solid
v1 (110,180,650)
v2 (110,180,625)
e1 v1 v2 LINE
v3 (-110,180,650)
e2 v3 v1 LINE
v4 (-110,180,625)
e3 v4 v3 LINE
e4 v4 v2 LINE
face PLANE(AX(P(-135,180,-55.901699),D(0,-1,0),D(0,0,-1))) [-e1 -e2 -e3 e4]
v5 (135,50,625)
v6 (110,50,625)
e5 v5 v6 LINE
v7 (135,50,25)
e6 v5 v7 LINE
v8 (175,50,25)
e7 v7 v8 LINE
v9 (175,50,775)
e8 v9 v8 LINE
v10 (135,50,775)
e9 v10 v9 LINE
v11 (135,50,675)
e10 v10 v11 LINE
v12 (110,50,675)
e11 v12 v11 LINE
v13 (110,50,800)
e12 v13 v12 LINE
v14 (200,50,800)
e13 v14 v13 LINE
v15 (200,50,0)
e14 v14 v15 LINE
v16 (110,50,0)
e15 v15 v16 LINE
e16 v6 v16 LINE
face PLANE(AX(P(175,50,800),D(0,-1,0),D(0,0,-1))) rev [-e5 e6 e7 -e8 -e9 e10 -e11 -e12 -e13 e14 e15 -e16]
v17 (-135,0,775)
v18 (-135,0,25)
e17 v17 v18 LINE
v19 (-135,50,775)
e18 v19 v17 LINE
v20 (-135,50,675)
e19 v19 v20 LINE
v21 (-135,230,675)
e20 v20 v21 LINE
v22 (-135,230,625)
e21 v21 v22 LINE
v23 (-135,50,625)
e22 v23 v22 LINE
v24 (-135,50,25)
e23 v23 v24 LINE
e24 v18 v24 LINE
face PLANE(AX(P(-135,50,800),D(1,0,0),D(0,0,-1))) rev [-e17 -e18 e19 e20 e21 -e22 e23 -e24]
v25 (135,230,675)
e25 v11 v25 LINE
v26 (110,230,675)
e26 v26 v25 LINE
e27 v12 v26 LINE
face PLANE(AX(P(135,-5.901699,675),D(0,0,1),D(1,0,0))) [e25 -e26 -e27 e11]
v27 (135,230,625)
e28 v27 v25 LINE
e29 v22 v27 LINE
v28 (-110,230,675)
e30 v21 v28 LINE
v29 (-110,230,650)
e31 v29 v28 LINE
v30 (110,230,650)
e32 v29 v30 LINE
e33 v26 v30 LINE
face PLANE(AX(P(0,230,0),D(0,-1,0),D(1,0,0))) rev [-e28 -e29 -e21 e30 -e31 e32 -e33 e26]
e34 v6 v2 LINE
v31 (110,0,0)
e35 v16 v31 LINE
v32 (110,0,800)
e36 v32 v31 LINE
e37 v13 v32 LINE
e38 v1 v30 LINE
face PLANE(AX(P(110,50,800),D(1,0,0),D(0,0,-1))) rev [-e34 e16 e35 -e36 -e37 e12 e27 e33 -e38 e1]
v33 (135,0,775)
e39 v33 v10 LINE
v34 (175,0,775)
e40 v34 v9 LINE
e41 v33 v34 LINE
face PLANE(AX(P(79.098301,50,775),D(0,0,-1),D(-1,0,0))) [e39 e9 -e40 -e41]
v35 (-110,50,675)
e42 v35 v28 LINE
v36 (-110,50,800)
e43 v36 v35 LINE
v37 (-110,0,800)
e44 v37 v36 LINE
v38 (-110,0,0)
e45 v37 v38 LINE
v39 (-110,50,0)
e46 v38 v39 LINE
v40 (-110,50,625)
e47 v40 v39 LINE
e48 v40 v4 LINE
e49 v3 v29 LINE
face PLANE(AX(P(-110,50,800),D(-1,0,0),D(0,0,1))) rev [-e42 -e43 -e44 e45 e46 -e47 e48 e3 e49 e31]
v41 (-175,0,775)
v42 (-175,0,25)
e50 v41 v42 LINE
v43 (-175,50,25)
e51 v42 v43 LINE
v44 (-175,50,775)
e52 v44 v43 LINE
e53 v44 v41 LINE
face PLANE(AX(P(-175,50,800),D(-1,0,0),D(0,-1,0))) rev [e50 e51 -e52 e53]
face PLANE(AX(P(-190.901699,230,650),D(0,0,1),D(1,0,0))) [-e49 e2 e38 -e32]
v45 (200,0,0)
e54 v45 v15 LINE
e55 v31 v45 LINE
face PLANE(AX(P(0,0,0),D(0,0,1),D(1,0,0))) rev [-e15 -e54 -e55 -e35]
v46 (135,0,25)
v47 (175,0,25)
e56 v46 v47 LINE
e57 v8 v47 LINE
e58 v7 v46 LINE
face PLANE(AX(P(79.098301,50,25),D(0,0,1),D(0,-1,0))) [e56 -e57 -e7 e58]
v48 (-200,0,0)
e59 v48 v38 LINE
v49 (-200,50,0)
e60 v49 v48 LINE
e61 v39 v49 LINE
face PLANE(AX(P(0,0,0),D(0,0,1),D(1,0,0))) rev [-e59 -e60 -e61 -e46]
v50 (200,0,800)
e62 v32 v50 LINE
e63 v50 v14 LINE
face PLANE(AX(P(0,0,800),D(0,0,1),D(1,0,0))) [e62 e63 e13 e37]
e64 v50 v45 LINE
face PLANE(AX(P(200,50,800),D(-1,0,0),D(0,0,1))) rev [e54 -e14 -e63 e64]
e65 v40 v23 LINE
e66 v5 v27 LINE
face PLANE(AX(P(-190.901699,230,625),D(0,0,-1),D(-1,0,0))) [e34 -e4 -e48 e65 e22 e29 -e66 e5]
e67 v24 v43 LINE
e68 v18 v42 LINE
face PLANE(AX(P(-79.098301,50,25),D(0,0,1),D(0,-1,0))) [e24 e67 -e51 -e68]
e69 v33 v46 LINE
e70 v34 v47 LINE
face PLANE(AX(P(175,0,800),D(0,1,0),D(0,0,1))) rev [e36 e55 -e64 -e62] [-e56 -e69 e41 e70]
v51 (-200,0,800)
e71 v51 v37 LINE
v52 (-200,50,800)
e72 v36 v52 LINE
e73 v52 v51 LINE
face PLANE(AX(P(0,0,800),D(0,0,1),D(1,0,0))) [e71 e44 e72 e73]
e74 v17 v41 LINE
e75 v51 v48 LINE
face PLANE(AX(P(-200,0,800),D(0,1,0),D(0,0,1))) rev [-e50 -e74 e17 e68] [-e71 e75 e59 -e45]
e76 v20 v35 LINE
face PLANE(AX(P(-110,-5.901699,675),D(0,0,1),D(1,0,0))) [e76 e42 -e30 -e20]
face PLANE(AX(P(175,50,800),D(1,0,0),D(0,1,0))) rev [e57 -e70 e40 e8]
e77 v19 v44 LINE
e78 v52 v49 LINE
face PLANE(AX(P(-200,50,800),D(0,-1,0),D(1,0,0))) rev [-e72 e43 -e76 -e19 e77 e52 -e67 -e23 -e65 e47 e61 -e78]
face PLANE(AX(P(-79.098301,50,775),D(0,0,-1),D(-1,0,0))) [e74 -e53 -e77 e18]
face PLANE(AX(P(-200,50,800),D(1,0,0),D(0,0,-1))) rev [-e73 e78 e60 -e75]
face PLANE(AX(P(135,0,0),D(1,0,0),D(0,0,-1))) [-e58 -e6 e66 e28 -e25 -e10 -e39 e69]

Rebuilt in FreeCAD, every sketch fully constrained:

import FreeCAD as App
import Part
import Sketcher
from FreeCAD import Vector
Q = App.Units.Quantity

doc = App.newDocument("Part")
body = doc.addObject("PartDesign::Body", "Body")

sketch1 = body.newObject("Sketcher::SketchObject", "Sketch")
sketch1.AttachmentSupport = (doc.getObject("XY_Plane"), [""])
sketch1.MapMode = "FlatFace"
sketch1.addGeometry([
    Part.LineSegment(Vector(-200, 50, 0), Vector(-200, 0, 0)),
    Part.LineSegment(Vector(-200, 0, 0), Vector(-175, 0, 0)),
    Part.LineSegment(Vector(-175, 0, 0), Vector(-175, 50, 0)),
    Part.LineSegment(Vector(-175, 50, 0), Vector(-200, 50, 0)),
], False)
sketch1.addConstraint([
    Sketcher.Constraint("Coincident", 0, 2, 1, 1),
    Sketcher.Constraint("Coincident", 1, 2, 2, 1),
    Sketcher.Constraint("Coincident", 2, 2, 3, 1),
    Sketcher.Constraint("Coincident", 3, 2, 0, 1),
    Sketcher.Constraint("Vertical", 0),
    Sketcher.Constraint("Horizontal", 1),
    Sketcher.Constraint("Vertical", 2),
    Sketcher.Constraint("Horizontal", 3),
    Sketcher.Constraint("PointOnObject", 0, 2, -1),
    Sketcher.Constraint("DistanceX", 1, 1, 1, 2, Q("25 mm")),
    Sketcher.Constraint("DistanceY", 0, 2, 0, 1, Q("50 mm")),
    Sketcher.Constraint("DistanceX", 0, 2, -1, 1, Q("200 mm")),
])
pad1 = body.newObject("PartDesign::Pad", "Pad")
pad1.Profile = sketch1
pad1.Length = 800
body2 = doc.addObject("PartDesign::Body", "Body001")

sketch2 = body2.newObject("Sketcher::SketchObject", "Sketch001")
sketch2.AttachmentSupport = (doc.getObject("XY_Plane001"), [""])
sketch2.MapMode = "FlatFace"
sketch2.addGeometry([
    Part.LineSegment(Vector(175, 50, 0), Vector(175, 0, 0)),
    Part.LineSegment(Vector(175, 0, 0), Vector(200, 0, 0)),
    Part.LineSegment(Vector(200, 0, 0), Vector(200, 50, 0)),
    Part.LineSegment(Vector(200, 50, 0), Vector(175, 50, 0)),
], False)
sketch2.addConstraint([
    Sketcher.Constraint("Coincident", 0, 2, 1, 1),
    Sketcher.Constraint("Coincident", 1, 2, 2, 1),
    Sketcher.Constraint("Coincident", 2, 2, 3, 1),
    Sketcher.Constraint("Coincident", 3, 2, 0, 1),
    Sketcher.Constraint("Vertical", 0),
    Sketcher.Constraint("Horizontal", 1),
    Sketcher.Constraint("Vertical", 2),
    Sketcher.Constraint("Horizontal", 3),
    Sketcher.Constraint("PointOnObject", 0, 2, -1),
    Sketcher.Constraint("DistanceX", 1, 1, 1, 2, Q("25 mm")),
    Sketcher.Constraint("DistanceY", 0, 2, 0, 1, Q("50 mm")),
    Sketcher.Constraint("DistanceX", -1, 1, 0, 2, Q("175 mm")),
])
pad2 = body2.newObject("PartDesign::Pad", "Pad001")
pad2.Profile = sketch2
pad2.Length = 800
body3 = doc.addObject("PartDesign::Body", "Body002")

sketch3 = body3.newObject("Sketcher::SketchObject", "Sketch002")
sketch3.AttachmentSupport = (doc.getObject("XY_Plane002"), [""])
sketch3.MapMode = "FlatFace"
sketch3.addGeometry([
    Part.LineSegment(Vector(-135, 50, 0), Vector(-135, 0, 0)),
    Part.LineSegment(Vector(-135, 0, 0), Vector(-110, 0, 0)),
    Part.LineSegment(Vector(-110, 0, 0), Vector(-110, 50, 0)),
    Part.LineSegment(Vector(-110, 50, 0), Vector(-135, 50, 0)),
], False)
sketch3.addConstraint([
    Sketcher.Constraint("Coincident", 0, 2, 1, 1),
    Sketcher.Constraint("Coincident", 1, 2, 2, 1),
    Sketcher.Constraint("Coincident", 2, 2, 3, 1),
    Sketcher.Constraint("Coincident", 3, 2, 0, 1),
    Sketcher.Constraint("Vertical", 0),
    Sketcher.Constraint("Horizontal", 1),
    Sketcher.Constraint("Vertical", 2),
    Sketcher.Constraint("Horizontal", 3),
    Sketcher.Constraint("PointOnObject", 0, 2, -1),
    Sketcher.Constraint("DistanceX", 1, 1, 1, 2, Q("25 mm")),
    Sketcher.Constraint("DistanceY", 0, 2, 0, 1, Q("50 mm")),
    Sketcher.Constraint("DistanceX", 0, 2, -1, 1, Q("135 mm")),
])
pad3 = body3.newObject("PartDesign::Pad", "Pad002")
pad3.Profile = sketch3
pad3.Length = 800
body4 = doc.addObject("PartDesign::Body", "Body003")

sketch4 = body4.newObject("Sketcher::SketchObject", "Sketch003")
sketch4.AttachmentSupport = (doc.getObject("XY_Plane003"), [""])
sketch4.MapMode = "FlatFace"
sketch4.addGeometry([
    Part.LineSegment(Vector(110, 50, 0), Vector(110, 0, 0)),
    Part.LineSegment(Vector(110, 0, 0), Vector(135, 0, 0)),
    Part.LineSegment(Vector(135, 0, 0), Vector(135, 50, 0)),
    Part.LineSegment(Vector(135, 50, 0), Vector(110, 50, 0)),
], False)
sketch4.addConstraint([
    Sketcher.Constraint("Coincident", 0, 2, 1, 1),
    Sketcher.Constraint("Coincident", 1, 2, 2, 1),
    Sketcher.Constraint("Coincident", 2, 2, 3, 1),
    Sketcher.Constraint("Coincident", 3, 2, 0, 1),
    Sketcher.Constraint("Vertical", 0),
    Sketcher.Constraint("Horizontal", 1),
    Sketcher.Constraint("Vertical", 2),
    Sketcher.Constraint("Horizontal", 3),
    Sketcher.Constraint("PointOnObject", 0, 2, -1),
    Sketcher.Constraint("DistanceX", 1, 1, 1, 2, Q("25 mm")),
    Sketcher.Constraint("DistanceY", 0, 2, 0, 1, Q("50 mm")),
    Sketcher.Constraint("DistanceX", -1, 1, 0, 2, Q("110 mm")),
])
pad4 = body4.newObject("PartDesign::Pad", "Pad003")
pad4.Profile = sketch4
pad4.Length = 800
body3.AllowCompound = True
doc.recompute()

boolean = body3.newObject("PartDesign::Boolean", "Boolean")
boolean.Type = "Fuse"
boolean.addObjects([body4])

sketch5 = body3.newObject("Sketcher::SketchObject", "Sketch004")
sketch5.AttachmentSupport = (doc.getObject("XZ_Plane002"), [""])
sketch5.MapMode = "FlatFace"
sketch5.addGeometry([
    Part.LineSegment(Vector(-135, 800, 0), Vector(-135, 750, 0)),
    Part.LineSegment(Vector(-135, 750, 0), Vector(-110, 750, 0)),
    Part.LineSegment(Vector(-110, 750, 0), Vector(-110, 800, 0)),
    Part.LineSegment(Vector(-110, 800, 0), Vector(-135, 800, 0)),
    Part.LineSegment(Vector(110, 800, 0), Vector(110, 750, 0)),
    Part.LineSegment(Vector(110, 750, 0), Vector(135, 750, 0)),
    Part.LineSegment(Vector(135, 750, 0), Vector(135, 800, 0)),
    Part.LineSegment(Vector(135, 800, 0), Vector(110, 800, 0)),
    Part.LineSegment(Vector(-135, 50, 0), Vector(-135, 0, 0)),
    Part.LineSegment(Vector(-135, 0, 0), Vector(-110, 0, 0)),
    Part.LineSegment(Vector(-110, 0, 0), Vector(-110, 50, 0)),
    Part.LineSegment(Vector(-110, 50, 0), Vector(-135, 50, 0)),
    Part.LineSegment(Vector(110, 50, 0), Vector(110, 0, 0)),
    Part.LineSegment(Vector(110, 0, 0), Vector(135, 0, 0)),
    Part.LineSegment(Vector(135, 0, 0), Vector(135, 50, 0)),
    Part.LineSegment(Vector(135, 50, 0), Vector(110, 50, 0)),
], False)
sketch5.addConstraint([
    Sketcher.Constraint("Coincident", 0, 2, 1, 1),
    Sketcher.Constraint("Coincident", 1, 2, 2, 1),
    Sketcher.Constraint("Coincident", 2, 2, 3, 1),
    Sketcher.Constraint("Coincident", 3, 2, 0, 1),
    Sketcher.Constraint("Coincident", 4, 2, 5, 1),
    Sketcher.Constraint("Coincident", 5, 2, 6, 1),
    Sketcher.Constraint("Coincident", 6, 2, 7, 1),
    Sketcher.Constraint("Coincident", 7, 2, 4, 1),
    Sketcher.Constraint("Coincident", 8, 2, 9, 1),
    Sketcher.Constraint("Coincident", 9, 2, 10, 1),
    Sketcher.Constraint("Coincident", 10, 2, 11, 1),
    Sketcher.Constraint("Coincident", 11, 2, 8, 1),
    Sketcher.Constraint("Coincident", 12, 2, 13, 1),
    Sketcher.Constraint("Coincident", 13, 2, 14, 1),
    Sketcher.Constraint("Coincident", 14, 2, 15, 1),
    Sketcher.Constraint("Coincident", 15, 2, 12, 1),
    Sketcher.Constraint("Vertical", 0),
    Sketcher.Constraint("Horizontal", 1),
    Sketcher.Constraint("Vertical", 2),
    Sketcher.Constraint("Horizontal", 3),
    Sketcher.Constraint("Vertical", 4),
    Sketcher.Constraint("Horizontal", 5),
    Sketcher.Constraint("Vertical", 6),
    Sketcher.Constraint("Horizontal", 7),
    Sketcher.Constraint("Vertical", 8),
    Sketcher.Constraint("Horizontal", 9),
    Sketcher.Constraint("Vertical", 10),
    Sketcher.Constraint("Horizontal", 11),
    Sketcher.Constraint("Vertical", 12),
    Sketcher.Constraint("Horizontal", 13),
    Sketcher.Constraint("Vertical", 14),
    Sketcher.Constraint("Horizontal", 15),
    Sketcher.Constraint("Symmetric", 9, 2, 12, 2, -1, 1),
    Sketcher.Constraint("Symmetric", 1, 2, 4, 2, -2),
    Sketcher.Constraint("Symmetric", 3, 2, 6, 2, -2),
    Sketcher.Constraint("Symmetric", 8, 2, 13, 2, -2),
    Sketcher.Constraint("Horizontal", 11, 2, 14, 2),
    Sketcher.Constraint("Vertical", 3, 2, 8, 2),
    Sketcher.Constraint("Vertical", 2, 2, 9, 2),
    Sketcher.Constraint("Equal", 6, 8),
    Sketcher.Constraint("DistanceX", 1, 1, 1, 2, Q("25 mm")),
    Sketcher.Constraint("DistanceY", 0, 2, 0, 1, Q("50 mm")),
    Sketcher.Constraint("DistanceX", 0, 2, -1, 1, Q("135 mm")),
    Sketcher.Constraint("DistanceY", -1, 1, 0, 2, Q("750 mm")),
])
pad5 = body3.newObject("PartDesign::Pad", "Pad004")
pad5.Profile = sketch5
pad5.Length = 230
pad5.Reversed = True
body.AllowCompound = True
doc.recompute()

boolean2 = body.newObject("PartDesign::Boolean", "Boolean001")
boolean2.Type = "Fuse"
boolean2.addObjects([body3])

sketch6 = body.newObject("Sketcher::SketchObject", "Sketch005")
sketch6.AttachmentSupport = (doc.getObject("YZ_Plane"), [""])
sketch6.MapMode = "FlatFace"
sketch6.AttachmentOffset = App.Placement(Vector(0, 0, -200), App.Rotation())
sketch6.addGeometry([
    Part.LineSegment(Vector(50, 0, 0), Vector(0, 0, 0)),
    Part.LineSegment(Vector(0, 0, 0), Vector(0, 25, 0)),
    Part.LineSegment(Vector(0, 25, 0), Vector(50, 25, 0)),
    Part.LineSegment(Vector(50, 25, 0), Vector(50, 0, 0)),
    Part.LineSegment(Vector(50, 775, 0), Vector(0, 775, 0)),
    Part.LineSegment(Vector(0, 775, 0), Vector(0, 800, 0)),
    Part.LineSegment(Vector(0, 800, 0), Vector(50, 800, 0)),
    Part.LineSegment(Vector(50, 800, 0), Vector(50, 775, 0)),
], False)
sketch6.addConstraint([
    Sketcher.Constraint("Coincident", 0, 2, 1, 1),
    Sketcher.Constraint("Coincident", 1, 2, 2, 1),
    Sketcher.Constraint("Coincident", 2, 2, 3, 1),
    Sketcher.Constraint("Coincident", 3, 2, 0, 1),
    Sketcher.Constraint("Coincident", 4, 2, 5, 1),
    Sketcher.Constraint("Coincident", 5, 2, 6, 1),
    Sketcher.Constraint("Coincident", 6, 2, 7, 1),
    Sketcher.Constraint("Coincident", 7, 2, 4, 1),
    Sketcher.Constraint("Horizontal", 0),
    Sketcher.Constraint("Vertical", 1),
    Sketcher.Constraint("Horizontal", 2),
    Sketcher.Constraint("Vertical", 3),
    Sketcher.Constraint("Horizontal", 4),
    Sketcher.Constraint("Vertical", 5),
    Sketcher.Constraint("Horizontal", 6),
    Sketcher.Constraint("Vertical", 7),
    Sketcher.Constraint("Coincident", 0, 2, -1, 1),
    Sketcher.Constraint("PointOnObject", 4, 2, -2),
    Sketcher.Constraint("Vertical", 3, 2, 6, 2),
    Sketcher.Constraint("Equal", 3, 5),
    Sketcher.Constraint("DistanceX", 0, 2, 0, 1, Q("50 mm")),
    Sketcher.Constraint("DistanceY", 1, 1, 1, 2, Q("25 mm")),
    Sketcher.Constraint("DistanceY", -1, 1, 4, 2, Q("775 mm")),
])
pad6 = body.newObject("PartDesign::Pad", "Pad005")
pad6.Profile = sketch6
pad6.Length = 65
doc.recompute()

boolean3 = body.newObject("PartDesign::Boolean", "Boolean002")
boolean3.Type = "Fuse"
boolean3.addObjects([body2])

sketch7 = body.newObject("Sketcher::SketchObject", "Sketch006")
sketch7.AttachmentSupport = (doc.getObject("YZ_Plane"), [""])
sketch7.MapMode = "FlatFace"
sketch7.AttachmentOffset = App.Placement(Vector(0, 0, 200), App.Rotation())
sketch7.addGeometry([
    Part.LineSegment(Vector(50, 800, 0), Vector(0, 800, 0)),
    Part.LineSegment(Vector(0, 800, 0), Vector(0, 775, 0)),
    Part.LineSegment(Vector(0, 775, 0), Vector(50, 775, 0)),
    Part.LineSegment(Vector(50, 775, 0), Vector(50, 800, 0)),
    Part.LineSegment(Vector(50, 25, 0), Vector(0, 25, 0)),
    Part.LineSegment(Vector(0, 25, 0), Vector(0, 0, 0)),
    Part.LineSegment(Vector(0, 0, 0), Vector(50, 0, 0)),
    Part.LineSegment(Vector(50, 0, 0), Vector(50, 25, 0)),
], False)
sketch7.addConstraint([
    Sketcher.Constraint("Coincident", 0, 2, 1, 1),
    Sketcher.Constraint("Coincident", 1, 2, 2, 1),
    Sketcher.Constraint("Coincident", 2, 2, 3, 1),
    Sketcher.Constraint("Coincident", 3, 2, 0, 1),
    Sketcher.Constraint("Coincident", 4, 2, 5, 1),
    Sketcher.Constraint("Coincident", 5, 2, 6, 1),
    Sketcher.Constraint("Coincident", 6, 2, 7, 1),
    Sketcher.Constraint("Coincident", 7, 2, 4, 1),
    Sketcher.Constraint("Horizontal", 0),
    Sketcher.Constraint("Vertical", 1),
    Sketcher.Constraint("Horizontal", 2),
    Sketcher.Constraint("Vertical", 3),
    Sketcher.Constraint("Horizontal", 4),
    Sketcher.Constraint("Vertical", 5),
    Sketcher.Constraint("Horizontal", 6),
    Sketcher.Constraint("Vertical", 7),
    Sketcher.Constraint("Coincident", 5, 2, -1, 1),
    Sketcher.Constraint("PointOnObject", 0, 2, -2),
    Sketcher.Constraint("Vertical", 3, 2, 6, 2),
    Sketcher.Constraint("Equal", 3, 5),
    Sketcher.Constraint("DistanceX", 0, 2, 0, 1, Q("50 mm")),
    Sketcher.Constraint("DistanceY", 1, 2, 1, 1, Q("25 mm")),
    Sketcher.Constraint("DistanceY", -1, 1, 0, 2, Q("800 mm")),
])
pad7 = body.newObject("PartDesign::Pad", "Pad006")
pad7.Profile = sketch7
pad7.Length = 65
pad7.Reversed = True

sketch8 = body.newObject("Sketcher::SketchObject", "Sketch007")
sketch8.AttachmentSupport = (doc.getObject("XY_Plane"), [""])
sketch8.MapMode = "FlatFace"
sketch8.AttachmentOffset = App.Placement(Vector(0, 0, 800), App.Rotation())
sketch8.addGeometry([
    Part.LineSegment(Vector(-135, 230, 0), Vector(-135, 180, 0)),
    Part.LineSegment(Vector(-135, 180, 0), Vector(-110, 180, 0)),
    Part.LineSegment(Vector(-110, 180, 0), Vector(-110, 230, 0)),
    Part.LineSegment(Vector(-110, 230, 0), Vector(-135, 230, 0)),
    Part.LineSegment(Vector(110, 230, 0), Vector(110, 180, 0)),
    Part.LineSegment(Vector(110, 180, 0), Vector(135, 180, 0)),
    Part.LineSegment(Vector(135, 180, 0), Vector(135, 230, 0)),
    Part.LineSegment(Vector(135, 230, 0), Vector(110, 230, 0)),
], False)
sketch8.addConstraint([
    Sketcher.Constraint("Coincident", 0, 2, 1, 1),
    Sketcher.Constraint("Coincident", 1, 2, 2, 1),
    Sketcher.Constraint("Coincident", 2, 2, 3, 1),
    Sketcher.Constraint("Coincident", 3, 2, 0, 1),
    Sketcher.Constraint("Coincident", 4, 2, 5, 1),
    Sketcher.Constraint("Coincident", 5, 2, 6, 1),
    Sketcher.Constraint("Coincident", 6, 2, 7, 1),
    Sketcher.Constraint("Coincident", 7, 2, 4, 1),
    Sketcher.Constraint("Vertical", 0),
    Sketcher.Constraint("Horizontal", 1),
    Sketcher.Constraint("Vertical", 2),
    Sketcher.Constraint("Horizontal", 3),
    Sketcher.Constraint("Vertical", 4),
    Sketcher.Constraint("Horizontal", 5),
    Sketcher.Constraint("Vertical", 6),
    Sketcher.Constraint("Horizontal", 7),
    Sketcher.Constraint("Symmetric", 1, 2, 4, 2, -2),
    Sketcher.Constraint("Symmetric", 3, 2, 6, 2, -2),
    Sketcher.Constraint("DistanceX", 1, 1, 1, 2, Q("25 mm")),
    Sketcher.Constraint("DistanceY", 0, 2, 0, 1, Q("50 mm")),
    Sketcher.Constraint("DistanceX", 0, 2, -1, 1, Q("135 mm")),
    Sketcher.Constraint("DistanceY", -1, 1, 0, 2, Q("180 mm")),
])
pad8 = body.newObject("PartDesign::Pad", "Pad007")
pad8.Profile = sketch8
pad8.Length = 800
pad8.Reversed = True

sketch9 = body.newObject("Sketcher::SketchObject", "Sketch008")
sketch9.AttachmentSupport = (doc.getObject("YZ_Plane"), [""])
sketch9.MapMode = "FlatFace"
sketch9.AttachmentOffset = App.Placement(Vector(0, 0, 135), App.Rotation())
sketch9.addGeometry([
    Part.LineSegment(Vector(230, 650, 0), Vector(180, 650, 0)),
    Part.LineSegment(Vector(180, 650, 0), Vector(180, 625, 0)),
    Part.LineSegment(Vector(180, 625, 0), Vector(230, 625, 0)),
    Part.LineSegment(Vector(230, 625, 0), Vector(230, 650, 0)),
], False)
sketch9.addConstraint([
    Sketcher.Constraint("Coincident", 0, 2, 1, 1),
    Sketcher.Constraint("Coincident", 1, 2, 2, 1),
    Sketcher.Constraint("Coincident", 2, 2, 3, 1),
    Sketcher.Constraint("Coincident", 3, 2, 0, 1),
    Sketcher.Constraint("Horizontal", 0),
    Sketcher.Constraint("Vertical", 1),
    Sketcher.Constraint("Horizontal", 2),
    Sketcher.Constraint("Vertical", 3),
    Sketcher.Constraint("DistanceX", 0, 2, 0, 1, Q("50 mm")),
    Sketcher.Constraint("DistanceY", 1, 2, 1, 1, Q("25 mm")),
    Sketcher.Constraint("DistanceX", -1, 1, 0, 2, Q("180 mm")),
    Sketcher.Constraint("DistanceY", -1, 1, 0, 2, Q("650 mm")),
])
pad9 = body.newObject("PartDesign::Pad", "Pad008")
pad9.Profile = sketch9
pad9.Length = 270
pad9.Reversed = True

sketch10 = body.newObject("Sketcher::SketchObject", "Sketch009")
sketch10.AttachmentSupport = (doc.getObject("XZ_Plane"), [""])
sketch10.MapMode = "FlatFace"
sketch10.AttachmentOffset = App.Placement(Vector(0, 0, -230), App.Rotation())
sketch10.addGeometry([
    Part.LineSegment(Vector(-135, 625, 0), Vector(-135, 675, 0)),
    Part.LineSegment(Vector(-135, 675, 0), Vector(-110, 675, 0)),
    Part.LineSegment(Vector(-110, 675, 0), Vector(-110, 625, 0)),
    Part.LineSegment(Vector(-110, 625, 0), Vector(-135, 625, 0)),
    Part.LineSegment(Vector(110, 625, 0), Vector(110, 675, 0)),
    Part.LineSegment(Vector(110, 675, 0), Vector(135, 675, 0)),
    Part.LineSegment(Vector(135, 675, 0), Vector(135, 625, 0)),
    Part.LineSegment(Vector(135, 625, 0), Vector(110, 625, 0)),
], False)
sketch10.addConstraint([
    Sketcher.Constraint("Coincident", 0, 2, 1, 1),
    Sketcher.Constraint("Coincident", 1, 2, 2, 1),
    Sketcher.Constraint("Coincident", 2, 2, 3, 1),
    Sketcher.Constraint("Coincident", 3, 2, 0, 1),
    Sketcher.Constraint("Coincident", 4, 2, 5, 1),
    Sketcher.Constraint("Coincident", 5, 2, 6, 1),
    Sketcher.Constraint("Coincident", 6, 2, 7, 1),
    Sketcher.Constraint("Coincident", 7, 2, 4, 1),
    Sketcher.Constraint("Vertical", 0),
    Sketcher.Constraint("Horizontal", 1),
    Sketcher.Constraint("Vertical", 2),
    Sketcher.Constraint("Horizontal", 3),
    Sketcher.Constraint("Vertical", 4),
    Sketcher.Constraint("Horizontal", 5),
    Sketcher.Constraint("Vertical", 6),
    Sketcher.Constraint("Horizontal", 7),
    Sketcher.Constraint("Symmetric", 1, 2, 4, 2, -2),
    Sketcher.Constraint("Symmetric", 3, 2, 6, 2, -2),
    Sketcher.Constraint("DistanceX", 1, 1, 1, 2, Q("25 mm")),
    Sketcher.Constraint("DistanceY", 0, 1, 0, 2, Q("50 mm")),
    Sketcher.Constraint("DistanceX", 0, 2, -1, 1, Q("135 mm")),
    Sketcher.Constraint("DistanceY", -1, 1, 0, 2, Q("675 mm")),
])
pad10 = body.newObject("PartDesign::Pad", "Pad009")
pad10.Profile = sketch10
pad10.Length = 180

sketch11 = body.newObject("Sketcher::SketchObject", "Sketch010")
sketch11.AttachmentSupport = (doc.getObject("YZ_Plane"), [""])
sketch11.MapMode = "FlatFace"
sketch11.addGeometry([
    Part.LineSegment(Vector(230, 625, 0), Vector(50, 625, 0)),
    Part.LineSegment(Vector(50, 625, 0), Vector(50, 0, 0)),
    Part.LineSegment(Vector(50, 0, 0), Vector(230, 0, 0)),
    Part.LineSegment(Vector(230, 0, 0), Vector(230, 625, 0)),
    Part.LineSegment(Vector(230, 800, 0), Vector(50, 800, 0)),
    Part.LineSegment(Vector(50, 800, 0), Vector(50, 675, 0)),
    Part.LineSegment(Vector(50, 675, 0), Vector(230, 675, 0)),
    Part.LineSegment(Vector(230, 675, 0), Vector(230, 800, 0)),
], False)
sketch11.addConstraint([
    Sketcher.Constraint("Coincident", 0, 2, 1, 1),
    Sketcher.Constraint("Coincident", 1, 2, 2, 1),
    Sketcher.Constraint("Coincident", 2, 2, 3, 1),
    Sketcher.Constraint("Coincident", 3, 2, 0, 1),
    Sketcher.Constraint("Coincident", 4, 2, 5, 1),
    Sketcher.Constraint("Coincident", 5, 2, 6, 1),
    Sketcher.Constraint("Coincident", 6, 2, 7, 1),
    Sketcher.Constraint("Coincident", 7, 2, 4, 1),
    Sketcher.Constraint("Horizontal", 0),
    Sketcher.Constraint("Vertical", 1),
    Sketcher.Constraint("Horizontal", 2),
    Sketcher.Constraint("Vertical", 3),
    Sketcher.Constraint("Horizontal", 4),
    Sketcher.Constraint("Vertical", 5),
    Sketcher.Constraint("Horizontal", 6),
    Sketcher.Constraint("Vertical", 7),
    Sketcher.Constraint("PointOnObject", 1, 2, -1),
    Sketcher.Constraint("Vertical", 1, 2, 4, 2),
    Sketcher.Constraint("Vertical", 3, 2, 6, 2),
    Sketcher.Constraint("DistanceX", 0, 2, 0, 1, Q("180 mm")),
    Sketcher.Constraint("DistanceY", 1, 2, 1, 1, Q("625 mm")),
    Sketcher.Constraint("DistanceY", 5, 2, 5, 1, Q("125 mm")),
    Sketcher.Constraint("DistanceX", -1, 1, 0, 2, Q("50 mm")),
    Sketcher.Constraint("DistanceY", -1, 1, 4, 2, Q("800 mm")),
])
pocket1 = body.newObject("PartDesign::Pocket", "Pocket")
pocket1.Profile = sketch11
pocket1.Type = "ThroughAll"
pocket1.Midplane = True

doc.recompute()
